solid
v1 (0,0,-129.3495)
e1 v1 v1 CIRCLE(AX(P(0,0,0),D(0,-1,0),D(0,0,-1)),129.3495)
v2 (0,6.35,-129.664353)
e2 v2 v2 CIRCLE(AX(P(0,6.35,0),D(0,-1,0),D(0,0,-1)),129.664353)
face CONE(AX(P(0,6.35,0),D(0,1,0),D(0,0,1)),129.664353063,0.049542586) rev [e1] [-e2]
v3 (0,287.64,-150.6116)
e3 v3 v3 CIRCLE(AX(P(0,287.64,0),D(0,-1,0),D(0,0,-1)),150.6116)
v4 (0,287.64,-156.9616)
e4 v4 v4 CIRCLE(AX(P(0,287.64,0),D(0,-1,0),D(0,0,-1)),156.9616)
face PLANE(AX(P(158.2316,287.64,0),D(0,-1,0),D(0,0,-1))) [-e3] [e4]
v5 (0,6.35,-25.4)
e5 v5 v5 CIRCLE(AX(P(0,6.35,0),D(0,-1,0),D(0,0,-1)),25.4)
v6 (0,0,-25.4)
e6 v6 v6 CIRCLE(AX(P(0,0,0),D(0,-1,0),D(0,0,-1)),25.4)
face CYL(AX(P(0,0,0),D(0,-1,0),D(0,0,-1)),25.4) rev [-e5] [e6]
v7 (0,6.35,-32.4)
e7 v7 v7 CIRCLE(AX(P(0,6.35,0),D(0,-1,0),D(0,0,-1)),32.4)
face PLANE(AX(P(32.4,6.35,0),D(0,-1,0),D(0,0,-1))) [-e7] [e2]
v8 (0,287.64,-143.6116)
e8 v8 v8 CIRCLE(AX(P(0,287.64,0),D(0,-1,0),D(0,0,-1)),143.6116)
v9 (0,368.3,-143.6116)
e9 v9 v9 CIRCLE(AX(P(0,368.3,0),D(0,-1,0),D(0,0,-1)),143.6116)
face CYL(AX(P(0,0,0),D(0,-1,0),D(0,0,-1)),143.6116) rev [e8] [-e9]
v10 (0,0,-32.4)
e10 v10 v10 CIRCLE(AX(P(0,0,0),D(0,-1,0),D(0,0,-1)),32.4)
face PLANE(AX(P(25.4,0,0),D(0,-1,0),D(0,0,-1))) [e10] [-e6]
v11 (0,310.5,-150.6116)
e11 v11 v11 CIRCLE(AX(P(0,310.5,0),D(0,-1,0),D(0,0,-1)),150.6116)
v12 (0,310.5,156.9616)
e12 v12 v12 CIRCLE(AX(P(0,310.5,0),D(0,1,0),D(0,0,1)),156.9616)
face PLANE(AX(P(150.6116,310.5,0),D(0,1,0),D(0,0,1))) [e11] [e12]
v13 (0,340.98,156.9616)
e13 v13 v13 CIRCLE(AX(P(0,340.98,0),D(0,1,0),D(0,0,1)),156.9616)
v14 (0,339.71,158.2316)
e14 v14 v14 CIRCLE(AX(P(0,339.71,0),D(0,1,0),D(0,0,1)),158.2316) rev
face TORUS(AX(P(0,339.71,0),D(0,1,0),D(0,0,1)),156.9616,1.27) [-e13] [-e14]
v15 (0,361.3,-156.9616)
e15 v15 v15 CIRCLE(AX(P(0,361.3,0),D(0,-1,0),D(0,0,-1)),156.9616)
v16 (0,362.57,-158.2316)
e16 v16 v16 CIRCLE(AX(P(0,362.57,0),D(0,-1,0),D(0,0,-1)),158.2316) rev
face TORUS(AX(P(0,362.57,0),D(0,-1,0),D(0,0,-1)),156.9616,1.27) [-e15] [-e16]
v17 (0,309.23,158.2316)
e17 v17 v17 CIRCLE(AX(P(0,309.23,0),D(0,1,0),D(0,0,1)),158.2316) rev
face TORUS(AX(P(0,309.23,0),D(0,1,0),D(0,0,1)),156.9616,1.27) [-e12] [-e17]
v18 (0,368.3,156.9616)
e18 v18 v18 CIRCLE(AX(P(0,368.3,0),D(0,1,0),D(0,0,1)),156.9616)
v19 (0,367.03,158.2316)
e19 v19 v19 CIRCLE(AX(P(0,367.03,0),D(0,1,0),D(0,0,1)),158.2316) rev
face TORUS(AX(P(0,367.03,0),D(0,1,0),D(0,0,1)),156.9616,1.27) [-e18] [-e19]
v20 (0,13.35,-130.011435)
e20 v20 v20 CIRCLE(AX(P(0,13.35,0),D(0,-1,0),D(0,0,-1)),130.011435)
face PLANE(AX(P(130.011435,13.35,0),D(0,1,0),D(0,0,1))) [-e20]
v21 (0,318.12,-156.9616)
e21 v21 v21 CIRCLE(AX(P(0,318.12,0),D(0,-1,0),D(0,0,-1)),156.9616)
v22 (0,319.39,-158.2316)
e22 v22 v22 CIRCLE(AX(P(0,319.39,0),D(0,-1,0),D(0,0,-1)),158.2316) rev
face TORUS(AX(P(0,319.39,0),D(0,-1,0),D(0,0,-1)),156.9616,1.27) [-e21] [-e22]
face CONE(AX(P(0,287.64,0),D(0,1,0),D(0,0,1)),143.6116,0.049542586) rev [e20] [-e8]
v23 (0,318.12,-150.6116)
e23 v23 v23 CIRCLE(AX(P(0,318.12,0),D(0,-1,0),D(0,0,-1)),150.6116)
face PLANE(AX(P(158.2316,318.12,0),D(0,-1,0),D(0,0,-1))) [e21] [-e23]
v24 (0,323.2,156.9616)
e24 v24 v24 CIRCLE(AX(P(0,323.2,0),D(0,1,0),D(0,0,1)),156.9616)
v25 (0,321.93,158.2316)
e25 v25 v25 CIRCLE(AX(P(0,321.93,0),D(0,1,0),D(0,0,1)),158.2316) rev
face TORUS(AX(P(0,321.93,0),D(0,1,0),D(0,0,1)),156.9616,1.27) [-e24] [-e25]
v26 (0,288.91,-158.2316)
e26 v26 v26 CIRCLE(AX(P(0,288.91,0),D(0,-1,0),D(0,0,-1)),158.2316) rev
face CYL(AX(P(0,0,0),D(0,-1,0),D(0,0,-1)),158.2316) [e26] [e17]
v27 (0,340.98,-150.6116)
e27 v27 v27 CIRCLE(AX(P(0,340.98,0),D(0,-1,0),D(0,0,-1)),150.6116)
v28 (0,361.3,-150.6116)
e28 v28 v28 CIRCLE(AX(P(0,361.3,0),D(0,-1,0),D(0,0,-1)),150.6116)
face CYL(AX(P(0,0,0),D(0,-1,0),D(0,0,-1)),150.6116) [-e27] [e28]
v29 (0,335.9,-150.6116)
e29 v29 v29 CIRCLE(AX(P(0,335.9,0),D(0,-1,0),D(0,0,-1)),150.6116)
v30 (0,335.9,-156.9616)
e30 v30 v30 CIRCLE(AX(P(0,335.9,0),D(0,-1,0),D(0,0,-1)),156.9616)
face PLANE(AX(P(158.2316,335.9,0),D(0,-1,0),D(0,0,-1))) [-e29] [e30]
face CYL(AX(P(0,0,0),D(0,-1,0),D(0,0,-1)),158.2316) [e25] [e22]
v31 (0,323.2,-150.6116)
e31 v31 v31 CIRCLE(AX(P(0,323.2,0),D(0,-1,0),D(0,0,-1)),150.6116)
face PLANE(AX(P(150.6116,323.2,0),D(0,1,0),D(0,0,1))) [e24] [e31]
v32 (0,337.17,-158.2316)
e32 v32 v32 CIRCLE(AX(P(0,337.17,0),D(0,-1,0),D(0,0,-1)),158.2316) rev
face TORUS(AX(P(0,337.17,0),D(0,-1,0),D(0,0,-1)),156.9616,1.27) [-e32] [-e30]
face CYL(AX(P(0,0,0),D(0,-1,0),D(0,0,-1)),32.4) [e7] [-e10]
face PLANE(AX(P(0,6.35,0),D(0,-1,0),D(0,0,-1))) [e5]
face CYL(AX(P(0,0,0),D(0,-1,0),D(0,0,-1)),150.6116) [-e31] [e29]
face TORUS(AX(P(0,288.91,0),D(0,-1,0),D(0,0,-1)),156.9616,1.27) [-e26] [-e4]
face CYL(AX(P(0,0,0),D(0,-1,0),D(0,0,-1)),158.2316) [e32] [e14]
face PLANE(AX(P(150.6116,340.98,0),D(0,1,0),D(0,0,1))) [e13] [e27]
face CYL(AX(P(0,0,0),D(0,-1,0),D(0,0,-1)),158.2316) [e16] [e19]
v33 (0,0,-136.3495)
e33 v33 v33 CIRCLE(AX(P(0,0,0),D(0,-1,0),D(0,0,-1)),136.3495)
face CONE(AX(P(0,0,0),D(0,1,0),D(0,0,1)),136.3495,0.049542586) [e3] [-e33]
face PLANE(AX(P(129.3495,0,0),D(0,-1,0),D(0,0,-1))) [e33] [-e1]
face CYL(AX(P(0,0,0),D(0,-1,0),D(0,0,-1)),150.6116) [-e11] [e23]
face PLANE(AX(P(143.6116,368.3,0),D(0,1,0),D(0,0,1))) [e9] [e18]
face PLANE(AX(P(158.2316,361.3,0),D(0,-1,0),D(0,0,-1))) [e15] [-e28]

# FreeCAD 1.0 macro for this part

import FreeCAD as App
import Part
import Sketcher
Q = App.Units.Quantity


def edges_at(feature, points):
    """Names of the edges that pass closest to the given points."""
    edges = feature.Shape.Edges
    near = lambda p: min(range(len(edges)), key=lambda i: edges[i].distToShape(Part.Vertex(*p))[0])
    return sorted({f"Edge{near(p) + 1}" for p in points})


def add_polygon(sketch, points):
    """Adds a closed chain of lines whose ends are joined by coincident constraints."""
    first, n = sketch.GeometryCount, len(points)
    for a, b in zip(points, points[1:] + points[:1]):
        sketch.addGeometry(Part.LineSegment(App.Vector(*a, 0), App.Vector(*b, 0)), False)
    for i in range(n):
        sketch.addConstraint(Sketcher.Constraint("Coincident", first + i, 2, first + (i + 1) % n, 1))

doc = App.newDocument("Part")
params = doc.addObject("Spreadsheet::Sheet", "Params")
for row, (alias, value) in enumerate([
    ("sketch1_width", "1 in"),
    ("sketch1_width2", "0.3 in"),
    ("sketch1_height", "0.9 in"),
    ("sketch1_height2", "0.2 in"),
    ("sketch1_height3", "0.5 in"),
    ("revolution_angle", "360 deg"),
    ("fillet_radius", "0.05 in"),
], start=1):
    params.set(f"A{row}", alias)
    params.set(f"B{row}", "=" + value)
    params.setAlias(f"B{row}", alias)

body = doc.addObject("PartDesign::Body", "Body")

# Sketch on XY plane
sketch1 = body.newObject("Sketcher::SketchObject", "Sketch")
sketch1.AttachmentSupport = (doc.getObject("XY_Plane"), [""])
sketch1.MapMode = "FlatFace"
add_polygon(sketch1, [(0, 6.35), (25.4, 6.35), (25.4, 0), (32.4, 0), (32.4, 6.35), (129.664353, 6.35), (129.3495, 0), (136.3495, 0), (150.6116, 287.64), (158.2316, 287.64), (158.2316, 310.5), (150.6116, 310.5), (150.6116, 318.12), (158.2316, 318.12), (158.2316, 323.2), (150.6116, 323.2), (150.6116, 335.9), (158.2316, 335.9), (158.2316, 340.98), (150.6116, 340.98), (150.6116, 361.3), (158.2316, 361.3), (158.2316, 368.3), (143.6116, 368.3), (143.6116, 287.64), (130.011435, 13.35), (0, 13.35)])  # lines 0-26
sketch1.addConstraint(Sketcher.Constraint("Horizontal", 0))
sketch1.addConstraint(Sketcher.Constraint("Vertical", 1))
sketch1.addConstraint(Sketcher.Constraint("Horizontal", 2))
sketch1.addConstraint(Sketcher.Constraint("Vertical", 3))
sketch1.addConstraint(Sketcher.Constraint("Horizontal", 4))
sketch1.addConstraint(Sketcher.Constraint("Horizontal", 6))
sketch1.addConstraint(Sketcher.Constraint("Horizontal", 8))
sketch1.addConstraint(Sketcher.Constraint("Vertical", 9))
sketch1.addConstraint(Sketcher.Constraint("Horizontal", 10))
sketch1.addConstraint(Sketcher.Constraint("Vertical", 11))
sketch1.addConstraint(Sketcher.Constraint("Horizontal", 12))
sketch1.addConstraint(Sketcher.Constraint("Vertical", 13))
sketch1.addConstraint(Sketcher.Constraint("Horizontal", 14))
sketch1.addConstraint(Sketcher.Constraint("Vertical", 15))
sketch1.addConstraint(Sketcher.Constraint("Horizontal", 16))
sketch1.addConstraint(Sketcher.Constraint("Vertical", 17))
sketch1.addConstraint(Sketcher.Constraint("Horizontal", 18))
sketch1.addConstraint(Sketcher.Constraint("Vertical", 19))
sketch1.addConstraint(Sketcher.Constraint("Horizontal", 20))
sketch1.addConstraint(Sketcher.Constraint("Vertical", 21))
sketch1.addConstraint(Sketcher.Constraint("Horizontal", 22))
sketch1.addConstraint(Sketcher.Constraint("Vertical", 23))
sketch1.addConstraint(Sketcher.Constraint("Horizontal", 25))
sketch1.addConstraint(Sketcher.Constraint("Vertical", 26))
sketch1.addConstraint(Sketcher.Constraint("PointOnObject", 1, 2, -1))
sketch1.addConstraint(Sketcher.Constraint("PointOnObject", 5, 2, -1))
sketch1.addConstraint(Sketcher.Constraint("PointOnObject", 25, 2, -2))
sketch1.addConstraint(Sketcher.Constraint("Parallel", 5, 7))
sketch1.addConstraint(Sketcher.Constraint("Parallel", 7, 24))
sketch1.addConstraint(Sketcher.Constraint("Horizontal", 0, 2, 3, 2))
sketch1.addConstraint(Sketcher.Constraint("Horizontal", 8, 2, 23, 2))
sketch1.addConstraint(Sketcher.Constraint("Vertical", 7, 2, 10, 2))
sketch1.addConstraint(Sketcher.Constraint("Vertical", 9, 2, 12, 2))
sketch1.addConstraint(Sketcher.Constraint("Vertical", 11, 2, 14, 2))
sketch1.addConstraint(Sketcher.Constraint("Vertical", 13, 2, 16, 2))
sketch1.addConstraint(Sketcher.Constraint("Vertical", 15, 2, 18, 2))
sketch1.addConstraint(Sketcher.Constraint("Vertical", 17, 2, 20, 2))
sketch1.addConstraint(Sketcher.Constraint("Equal", 2, 6))
sketch1.addConstraint(Sketcher.Constraint("Equal", 20, 11))
sketch1.addConstraint(Sketcher.Constraint("Equal", 13, 17))
sketch1.addConstraint(Sketcher.Constraint("Equal", 6, 21))
sketch1.addConstraint(Sketcher.Constraint("Equal", 21, 26))
sketch1.addConstraint(Sketcher.Constraint("DistanceX", 0, 1, 0, 2, Q("1 in")))
sketch1.addConstraint(Sketcher.Constraint("DistanceX", 8, 1, 8, 2, Q("0.3 in")))
sketch1.addConstraint(Sketcher.Constraint("DistanceY", 9, 1, 9, 2, Q("0.9 in")))
sketch1.addConstraint(Sketcher.Constraint("DistanceY", 13, 1, 13, 2, Q("0.2 in")))
sketch1.addConstraint(Sketcher.Constraint("DistanceY", 15, 1, 15, 2, Q("0.5 in")))
sketch1.addConstraint(Sketcher.Constraint("DistanceY", 19, 1, 19, 2, Q("0.8 in")))
sketch1.addConstraint(Sketcher.Constraint("DistanceY", 1, 2, 1, 1, Q("0.25 in")))
sketch1.addConstraint(Sketcher.Constraint("DistanceY", -1, 1, 21, 2, Q("14.5 in")))
sketch1.addConstraint(Sketcher.Constraint("DistanceX", -1, 1, 22, 2, Q("5.654 in")))
sketch1.addConstraint(Sketcher.Constraint("DistanceX", 3, 2, 7, 2, Q("4.654 in")))
sketch1.addConstraint(Sketcher.Constraint("DistanceX", 2, 1, 2, 2, 7.0))
sketch1.addConstraint(Sketcher.Constraint("DistanceX", -1, 1, 5, 2, Q("5.0925 in")))
sketch1.setExpression("Constraints[69]", "Params.sketch1_width")
sketch1.setExpression("Constraints[70]", "Params.sketch1_width2")
sketch1.setExpression("Constraints[71]", "Params.sketch1_height")
sketch1.setExpression("Constraints[72]", "Params.sketch1_height2")
sketch1.setExpression("Constraints[73]", "Params.sketch1_height3")
revolution = body.newObject("PartDesign::Revolution", "Revolution")
revolution.Profile = sketch1
revolution.ReferenceAxis = (sketch1, ["V_Axis"])
revolution.setExpression("Angle", "Params.revolution_angle")
doc.recompute()

fillet = body.newObject("PartDesign::Fillet", "Fillet")
fillet.Base = (revolution, edges_at(revolution, [
    (-158.232, 368.3, 0),
    (-158.232, 361.3, 0),
    (-158.232, 340.98, 0),
    (-158.232, 335.9, 0),
    (-158.232, 323.2, 0),
    (-158.232, 318.12, 0),
    (-158.232, 310.5, 0),
    (-158.232, 287.64, 0),
]))
fillet.setExpression("Radius", "Params.fillet_radius")

doc.recompute()
